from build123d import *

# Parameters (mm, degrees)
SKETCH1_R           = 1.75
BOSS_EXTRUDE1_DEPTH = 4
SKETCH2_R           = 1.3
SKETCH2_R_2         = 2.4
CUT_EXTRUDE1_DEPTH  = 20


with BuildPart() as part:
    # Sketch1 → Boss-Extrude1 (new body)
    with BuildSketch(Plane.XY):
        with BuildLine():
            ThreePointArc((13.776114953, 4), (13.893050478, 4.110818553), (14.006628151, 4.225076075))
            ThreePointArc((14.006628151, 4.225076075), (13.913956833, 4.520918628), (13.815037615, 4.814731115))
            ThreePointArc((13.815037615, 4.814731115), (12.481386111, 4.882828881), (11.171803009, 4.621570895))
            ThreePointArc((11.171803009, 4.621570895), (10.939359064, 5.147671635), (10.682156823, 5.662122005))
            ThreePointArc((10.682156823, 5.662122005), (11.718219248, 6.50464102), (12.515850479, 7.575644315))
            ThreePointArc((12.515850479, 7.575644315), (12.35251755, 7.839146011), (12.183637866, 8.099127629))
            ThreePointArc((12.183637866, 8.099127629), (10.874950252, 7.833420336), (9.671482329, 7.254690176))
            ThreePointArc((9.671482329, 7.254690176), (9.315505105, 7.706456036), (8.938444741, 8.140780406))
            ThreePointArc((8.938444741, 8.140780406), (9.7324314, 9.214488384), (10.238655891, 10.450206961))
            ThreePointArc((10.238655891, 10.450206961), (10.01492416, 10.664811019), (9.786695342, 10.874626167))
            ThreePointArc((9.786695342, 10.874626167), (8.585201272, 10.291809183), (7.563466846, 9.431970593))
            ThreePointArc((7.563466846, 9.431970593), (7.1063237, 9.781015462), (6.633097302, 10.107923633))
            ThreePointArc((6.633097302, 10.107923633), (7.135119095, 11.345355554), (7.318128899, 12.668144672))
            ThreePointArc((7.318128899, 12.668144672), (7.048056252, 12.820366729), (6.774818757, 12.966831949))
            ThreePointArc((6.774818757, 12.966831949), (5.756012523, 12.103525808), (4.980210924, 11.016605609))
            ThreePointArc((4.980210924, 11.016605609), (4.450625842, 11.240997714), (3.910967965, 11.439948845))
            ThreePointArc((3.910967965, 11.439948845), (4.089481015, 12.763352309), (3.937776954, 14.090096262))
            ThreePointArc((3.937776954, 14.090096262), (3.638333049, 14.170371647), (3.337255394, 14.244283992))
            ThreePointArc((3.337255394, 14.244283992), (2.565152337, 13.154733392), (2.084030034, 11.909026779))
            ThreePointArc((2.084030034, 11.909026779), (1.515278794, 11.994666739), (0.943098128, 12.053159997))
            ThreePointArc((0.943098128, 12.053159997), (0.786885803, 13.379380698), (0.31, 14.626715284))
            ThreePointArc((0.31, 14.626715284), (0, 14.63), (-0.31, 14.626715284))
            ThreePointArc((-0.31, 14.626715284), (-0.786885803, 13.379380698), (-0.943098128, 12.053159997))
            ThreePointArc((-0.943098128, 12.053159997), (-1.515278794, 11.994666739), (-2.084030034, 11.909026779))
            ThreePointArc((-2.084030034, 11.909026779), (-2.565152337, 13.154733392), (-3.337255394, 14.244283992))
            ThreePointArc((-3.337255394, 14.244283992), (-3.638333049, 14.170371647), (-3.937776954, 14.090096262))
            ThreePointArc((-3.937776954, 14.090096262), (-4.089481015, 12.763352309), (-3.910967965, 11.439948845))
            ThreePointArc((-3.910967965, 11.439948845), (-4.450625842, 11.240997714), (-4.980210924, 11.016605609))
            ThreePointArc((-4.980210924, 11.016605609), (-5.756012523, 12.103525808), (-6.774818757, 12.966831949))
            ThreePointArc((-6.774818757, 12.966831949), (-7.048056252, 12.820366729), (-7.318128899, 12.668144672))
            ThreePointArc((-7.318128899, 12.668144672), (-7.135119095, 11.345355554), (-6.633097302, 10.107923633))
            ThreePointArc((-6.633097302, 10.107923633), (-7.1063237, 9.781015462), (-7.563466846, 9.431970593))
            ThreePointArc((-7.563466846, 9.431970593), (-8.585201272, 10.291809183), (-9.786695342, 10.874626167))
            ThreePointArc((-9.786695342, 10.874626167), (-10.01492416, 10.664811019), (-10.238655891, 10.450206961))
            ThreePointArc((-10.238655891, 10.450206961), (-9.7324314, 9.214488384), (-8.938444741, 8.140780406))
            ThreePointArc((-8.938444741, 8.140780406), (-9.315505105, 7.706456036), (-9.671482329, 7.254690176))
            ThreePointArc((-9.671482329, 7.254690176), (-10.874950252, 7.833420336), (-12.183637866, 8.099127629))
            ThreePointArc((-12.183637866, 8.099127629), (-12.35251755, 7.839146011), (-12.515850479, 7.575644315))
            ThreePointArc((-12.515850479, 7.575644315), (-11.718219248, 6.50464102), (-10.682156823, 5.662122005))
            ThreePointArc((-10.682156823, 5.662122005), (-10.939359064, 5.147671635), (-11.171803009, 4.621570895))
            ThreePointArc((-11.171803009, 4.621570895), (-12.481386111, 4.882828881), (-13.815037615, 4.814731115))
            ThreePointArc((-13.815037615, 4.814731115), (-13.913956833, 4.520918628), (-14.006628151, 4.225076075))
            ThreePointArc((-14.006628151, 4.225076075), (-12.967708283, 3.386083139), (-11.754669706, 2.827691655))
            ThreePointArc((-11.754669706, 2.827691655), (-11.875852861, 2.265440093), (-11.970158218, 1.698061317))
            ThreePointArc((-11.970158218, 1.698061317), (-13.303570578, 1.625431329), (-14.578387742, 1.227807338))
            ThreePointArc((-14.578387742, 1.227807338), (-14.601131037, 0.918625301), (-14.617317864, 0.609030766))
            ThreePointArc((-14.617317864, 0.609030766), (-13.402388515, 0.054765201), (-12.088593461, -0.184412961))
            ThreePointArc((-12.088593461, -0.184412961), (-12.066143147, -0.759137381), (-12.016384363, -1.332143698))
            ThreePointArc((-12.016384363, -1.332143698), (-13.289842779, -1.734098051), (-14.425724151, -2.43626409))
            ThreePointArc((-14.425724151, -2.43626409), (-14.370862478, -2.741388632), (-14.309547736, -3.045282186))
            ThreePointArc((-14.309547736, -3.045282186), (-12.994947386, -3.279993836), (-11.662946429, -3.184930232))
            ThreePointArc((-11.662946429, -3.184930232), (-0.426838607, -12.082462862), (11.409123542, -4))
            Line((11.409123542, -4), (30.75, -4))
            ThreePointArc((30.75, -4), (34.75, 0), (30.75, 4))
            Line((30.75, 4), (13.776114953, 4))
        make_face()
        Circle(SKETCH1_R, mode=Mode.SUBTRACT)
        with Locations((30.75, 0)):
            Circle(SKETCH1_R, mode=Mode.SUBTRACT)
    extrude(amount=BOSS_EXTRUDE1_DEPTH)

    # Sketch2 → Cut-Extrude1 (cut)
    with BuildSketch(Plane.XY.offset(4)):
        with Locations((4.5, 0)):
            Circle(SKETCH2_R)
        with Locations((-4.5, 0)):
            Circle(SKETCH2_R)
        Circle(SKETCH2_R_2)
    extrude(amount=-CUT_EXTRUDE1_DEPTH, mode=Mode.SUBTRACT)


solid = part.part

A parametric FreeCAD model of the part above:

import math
import FreeCAD as App
import Part
import Sketcher
from FreeCAD import Vector

doc = App.newDocument("Part")
params = doc.addObject("Spreadsheet::Sheet", "Params")
for row, (alias, value) in enumerate([
    ("sketch1_radius", "4 mm"),
    ("sketch1_diameter", "3.5 mm"),
    ("sketch1_radius2", "5.4 mm"),
    ("sketch1_radius3", "12.09 mm"),
    ("sketch1_radius4", "14.629999 mm"),
    ("pad1_length", "4 mm"),
    ("sketch2_diameter", "2.6 mm"),
    ("sketch2_diameter2", "4.8 mm"),
    ("pocket1_length", "20 mm"),
], start=1):
    params.set(f"A{row}", alias)
    params.set(f"B{row}", "=" + value)
    params.setAlias(f"B{row}", alias)

body = doc.addObject("PartDesign::Body", "Body")

# Sketch on XY plane
sketch1 = doc.addObject("Sketcher::SketchObject", "Sketch")
body.addObject(sketch1)
sketch1.AttachmentSupport = (doc.XY_Plane, [""])
sketch1.MapMode = "FlatFace"
sketch1.addGeometry(Part.ArcOfCircle(Part.Circle(Vector(10.12, 7.97, 0), Vector(0, 0, 1), 5.4), math.radians(-47.39), math.radians(-43.97)), False)
sketch1.addGeometry(Part.ArcOfCircle(Part.Circle(Vector(0, 0, 0), Vector(0, 0, 1), 14.63), math.radians(16.79), math.radians(19.21)), False)
sketch1.addGeometry(Part.ArcOfCircle(Part.Circle(Vector(12.87, -0.5, 0), Vector(0, 0, 1), 5.4), math.radians(80), math.radians(108)), False)
sketch1.addGeometry(Part.ArcOfCircle(Part.Circle(Vector(0, 0, 0), Vector(0, 0, 1), 12.09), math.radians(22.47), math.radians(27.93)), False)
sketch1.addGeometry(Part.ArcOfCircle(Part.Circle(Vector(7.82, 10.24, 0), Vector(0, 0, 1), 5.4), math.radians(-58), math.radians(-30)), False)
sketch1.addGeometry(Part.ArcOfCircle(Part.Circle(Vector(0, 0, 0), Vector(0, 0, 1), 14.63), math.radians(31.19), math.radians(33.61)), False)
sketch1.addGeometry(Part.ArcOfCircle(Part.Circle(Vector(12.6, 2.71, 0), Vector(0, 0, 1), 5.4), math.radians(94), math.radians(123)), False)
sketch1.addGeometry(Part.ArcOfCircle(Part.Circle(Vector(0, 0, 0), Vector(0, 0, 1), 12.09), math.radians(36.87), math.radians(42.33)), False)
sketch1.addGeometry(Part.ArcOfCircle(Part.Circle(Vector(5.03, 11.86, 0), Vector(0, 0, 1), 5.4), math.radians(-44), math.radians(-15)), False)
sketch1.addGeometry(Part.ArcOfCircle(Part.Circle(Vector(0, 0, 0), Vector(0, 0, 1), 14.63), math.radians(45.59), math.radians(48.01)), False)
sketch1.addGeometry(Part.ArcOfCircle(Part.Circle(Vector(11.52, 5.76, 0), Vector(0, 0, 1), 5.4), math.radians(109), math.radians(137)), False)
sketch1.addGeometry(Part.ArcOfCircle(Part.Circle(Vector(0, 0, 0), Vector(0, 0, 1), 12.09), math.radians(51.27), math.radians(56.73)), False)
sketch1.addGeometry(Part.ArcOfCircle(Part.Circle(Vector(1.92, 12.74, 0), Vector(0, 0, 1), 5.4), math.radians(-29), math.radians(-1)), False)
sketch1.addGeometry(Part.ArcOfCircle(Part.Circle(Vector(0, 0, 0), Vector(0, 0, 1), 14.63), math.radians(59.99), math.radians(62.41)), False)
sketch1.addGeometry(Part.ArcOfCircle(Part.Circle(Vector(9.73, 8.45, 0), Vector(0, 0, 1), 5.4), math.radians(123), math.radians(152)), False)
sketch1.addGeometry(Part.ArcOfCircle(Part.Circle(Vector(0, 0, 0), Vector(0, 0, 1), 12.09), math.radians(65.67), math.radians(71.13)), False)
sketch1.addGeometry(Part.ArcOfCircle(Part.Circle(Vector(-1.31, 12.82, 0), Vector(0, 0, 1), 5.4), math.radians(-15), math.radians(14)), False)
sketch1.addGeometry(Part.ArcOfCircle(Part.Circle(Vector(0, 0, 0), Vector(0, 0, 1), 14.63), math.radians(74.39), math.radians(76.81)), False)
sketch1.addGeometry(Part.ArcOfCircle(Part.Circle(Vector(7.32, 10.6, 0), Vector(0, 0, 1), 5.4), math.radians(138), math.radians(166)), False)
sketch1.addGeometry(Part.ArcOfCircle(Part.Circle(Vector(0, 0, 0), Vector(0, 0, 1), 12.09), math.radians(80.07), math.radians(85.53)), False)
sketch1.addGeometry(Part.ArcOfCircle(Part.Circle(Vector(-4.46, 12.09, 0), Vector(0, 0, 1), 5.4), math.radians(0), math.radians(28)), False)
sketch1.addGeometry(Part.ArcOfCircle(Part.Circle(Vector(0, 0, 0), Vector(0, 0, 1), 14.63), math.radians(88.79), math.radians(91.21)), False)
sketch1.addGeometry(Part.ArcOfCircle(Part.Circle(Vector(4.46, 12.09, 0), Vector(0, 0, 1), 5.4), math.radians(152), math.radians(180)), False)
sketch1.addGeometry(Part.ArcOfCircle(Part.Circle(Vector(0, 0, 0), Vector(0, 0, 1), 12.09), math.radians(94.47), math.radians(99.93)), False)
sketch1.addGeometry(Part.ArcOfCircle(Part.Circle(Vector(-7.32, 10.6, 0), Vector(0, 0, 1), 5.4), math.radians(14), math.radians(42)), False)
sketch1.addGeometry(Part.ArcOfCircle(Part.Circle(Vector(0, 0, 0), Vector(0, 0, 1), 14.63), math.radians(103.19), math.radians(105.61)), False)
sketch1.addGeometry(Part.ArcOfCircle(Part.Circle(Vector(1.31, 12.82, 0), Vector(0, 0, 1), 5.4), math.radians(166), math.radians(195)), False)
sketch1.addGeometry(Part.ArcOfCircle(Part.Circle(Vector(0, 0, 0), Vector(0, 0, 1), 12.09), math.radians(108.87), math.radians(114.33)), False)
sketch1.addGeometry(Part.ArcOfCircle(Part.Circle(Vector(-9.73, 8.45, 0), Vector(0, 0, 1), 5.4), math.radians(28), math.radians(57)), False)
sketch1.addGeometry(Part.ArcOfCircle(Part.Circle(Vector(0, 0, 0), Vector(0, 0, 1), 14.63), math.radians(117.59), math.radians(120.01)), False)
sketch1.addGeometry(Part.ArcOfCircle(Part.Circle(Vector(-1.92, 12.74, 0), Vector(0, 0, 1), 5.4), math.radians(-179), math.radians(-151)), False)
sketch1.addGeometry(Part.ArcOfCircle(Part.Circle(Vector(0, 0, 0), Vector(0, 0, 1), 12.09), math.radians(123.27), math.radians(128.73)), False)
sketch1.addGeometry(Part.ArcOfCircle(Part.Circle(Vector(-11.52, 5.76, 0), Vector(0, 0, 1), 5.4), math.radians(43), math.radians(71)), False)
sketch1.addGeometry(Part.ArcOfCircle(Part.Circle(Vector(0, 0, 0), Vector(0, 0, 1), 14.63), math.radians(131.99), math.radians(134.41)), False)
sketch1.addGeometry(Part.ArcOfCircle(Part.Circle(Vector(-5.03, 11.86, 0), Vector(0, 0, 1), 5.4), math.radians(-165), math.radians(-136)), False)
sketch1.addGeometry(Part.ArcOfCircle(Part.Circle(Vector(0, 0, 0), Vector(0, 0, 1), 12.09), math.radians(137.67), math.radians(143.13)), False)
sketch1.addGeometry(Part.ArcOfCircle(Part.Circle(Vector(-12.6, 2.71, 0), Vector(0, 0, 1), 5.4), math.radians(57), math.radians(86)), False)
sketch1.addGeometry(Part.ArcOfCircle(Part.Circle(Vector(0, 0, 0), Vector(0, 0, 1), 14.63), math.radians(146.39), math.radians(148.81)), False)
sketch1.addGeometry(Part.ArcOfCircle(Part.Circle(Vector(-7.82, 10.24, 0), Vector(0, 0, 1), 5.4), math.radians(-150), math.radians(-122)), False)
sketch1.addGeometry(Part.ArcOfCircle(Part.Circle(Vector(0, 0, 0), Vector(0, 0, 1), 12.09), math.radians(152.07), math.radians(157.53)), False)
sketch1.addGeometry(Part.ArcOfCircle(Part.Circle(Vector(-12.87, -0.5, 0), Vector(0, 0, 1), 5.4), math.radians(72), math.radians(100)), False)
sketch1.addGeometry(Part.ArcOfCircle(Part.Circle(Vector(0, 0, 0), Vector(0, 0, 1), 14.63), math.radians(160.79), math.radians(163.21)), False)
sketch1.addGeometry(Part.ArcOfCircle(Part.Circle(Vector(-10.12, 7.97, 0), Vector(0, 0, 1), 5.4), math.radians(-136), math.radians(-108)), False)
sketch1.addGeometry(Part.ArcOfCircle(Part.Circle(Vector(0, 0, 0), Vector(0, 0, 1), 12.09), math.radians(166.47), math.radians(171.93)), False)
sketch1.addGeometry(Part.ArcOfCircle(Part.Circle(Vector(-12.35, -3.69, 0), Vector(0, 0, 1), 5.4), math.radians(86), math.radians(114)), False)
sketch1.addGeometry(Part.ArcOfCircle(Part.Circle(Vector(0, 0, 0), Vector(0, 0, 1), 14.63), math.radians(175.19), math.radians(177.61)), False)
sketch1.addGeometry(Part.ArcOfCircle(Part.Circle(Vector(-11.79, 5.21, 0), Vector(0, 0, 1), 5.4), math.radians(-122), math.radians(-93)), False)
sketch1.addGeometry(Part.ArcOfCircle(Part.Circle(Vector(0, 0, 0), Vector(0, 0, 1), 12.09), math.radians(-179.13), math.radians(-173.67)), False)
sketch1.addGeometry(Part.ArcOfCircle(Part.Circle(Vector(-11.04, -6.64, 0), Vector(0, 0, 1), 5.4), math.radians(100), math.radians(129)), False)
sketch1.addGeometry(Part.ArcOfCircle(Part.Circle(Vector(0, 0, 0), Vector(0, 0, 1), 14.63), math.radians(-170.41), math.radians(-167.99)), False)
sketch1.addGeometry(Part.ArcOfCircle(Part.Circle(Vector(-12.71, 2.11, 0), Vector(0, 0, 1), 5.4), math.radians(-107), math.radians(-79)), False)
sketch1.addGeometry(Part.ArcOfCircle(Part.Circle(Vector(0, 0, 0), Vector(0, 0, 1), 12.09), math.radians(-165), math.radians(-19)), False)
sketch1.addGeometry(Part.LineSegment(Vector(11.41, -4, 0), Vector(30.75, -4, 0)), False)
sketch1.addGeometry(Part.ArcOfCircle(Part.Circle(Vector(30.75, 0, 0), Vector(0, 0, 1), 4), math.radians(-90), math.radians(90)), False)
sketch1.addGeometry(Part.LineSegment(Vector(30.75, 4, 0), Vector(13.78, 4, 0)), False)
sketch1.addGeometry(Part.Circle(Vector(0, 0, 0), Vector(0, 0, 1), 1.75), False)
sketch1.addGeometry(Part.Circle(Vector(30.75, 0, 0), Vector(0, 0, 1), 1.75), False)
sketch1.addConstraint(Sketcher.Constraint("Coincident", 0, 2, 1, 1))
sketch1.addConstraint(Sketcher.Constraint("Coincident", 1, 2, 2, 1))
sketch1.addConstraint(Sketcher.Constraint("Coincident", 2, 2, 3, 1))
sketch1.addConstraint(Sketcher.Constraint("Coincident", 3, 2, 4, 1))
sketch1.addConstraint(Sketcher.Constraint("Coincident", 4, 2, 5, 1))
sketch1.addConstraint(Sketcher.Constraint("Coincident", 5, 2, 6, 1))
sketch1.addConstraint(Sketcher.Constraint("Coincident", 6, 2, 7, 1))
sketch1.addConstraint(Sketcher.Constraint("Coincident", 7, 2, 8, 1))
sketch1.addConstraint(Sketcher.Constraint("Coincident", 8, 2, 9, 1))
sketch1.addConstraint(Sketcher.Constraint("Coincident", 9, 2, 10, 1))
sketch1.addConstraint(Sketcher.Constraint("Coincident", 10, 2, 11, 1))
sketch1.addConstraint(Sketcher.Constraint("Coincident", 11, 2, 12, 1))
sketch1.addConstraint(Sketcher.Constraint("Coincident", 12, 2, 13, 1))
sketch1.addConstraint(Sketcher.Constraint("Coincident", 13, 2, 14, 1))
sketch1.addConstraint(Sketcher.Constraint("Coincident", 14, 2, 15, 1))
sketch1.addConstraint(Sketcher.Constraint("Coincident", 15, 2, 16, 1))
sketch1.addConstraint(Sketcher.Constraint("Coincident", 16, 2, 17, 1))
sketch1.addConstraint(Sketcher.Constraint("Coincident", 17, 2, 18, 1))
sketch1.addConstraint(Sketcher.Constraint("Coincident", 18, 2, 19, 1))
sketch1.addConstraint(Sketcher.Constraint("Coincident", 19, 2, 20, 1))
sketch1.addConstraint(Sketcher.Constraint("Coincident", 20, 2, 21, 1))
sketch1.addConstraint(Sketcher.Constraint("Coincident", 21, 2, 22, 1))
sketch1.addConstraint(Sketcher.Constraint("Coincident", 22, 2, 23, 1))
sketch1.addConstraint(Sketcher.Constraint("Coincident", 23, 2, 24, 1))
sketch1.addConstraint(Sketcher.Constraint("Coincident", 24, 2, 25, 1))
sketch1.addConstraint(Sketcher.Constraint("Coincident", 25, 2, 26, 1))
sketch1.addConstraint(Sketcher.Constraint("Coincident", 26, 2, 27, 1))
sketch1.addConstraint(Sketcher.Constraint("Coincident", 27, 2, 28, 1))
sketch1.addConstraint(Sketcher.Constraint("Coincident", 28, 2, 29, 1))
sketch1.addConstraint(Sketcher.Constraint("Coincident", 29, 2, 30, 1))
sketch1.addConstraint(Sketcher.Constraint("Coincident", 30, 2, 31, 1))
sketch1.addConstraint(Sketcher.Constraint("Coincident", 31, 2, 32, 1))
sketch1.addConstraint(Sketcher.Constraint("Coincident", 32, 2, 33, 1))
sketch1.addConstraint(Sketcher.Constraint("Coincident", 33, 2, 34, 1))
sketch1.addConstraint(Sketcher.Constraint("Coincident", 34, 2, 35, 1))
sketch1.addConstraint(Sketcher.Constraint("Coincident", 35, 2, 36, 1))
sketch1.addConstraint(Sketcher.Constraint("Coincident", 36, 2, 37, 1))
sketch1.addConstraint(Sketcher.Constraint("Coincident", 37, 2, 38, 1))
sketch1.addConstraint(Sketcher.Constraint("Coincident", 38, 2, 39, 1))
sketch1.addConstraint(Sketcher.Constraint("Coincident", 39, 2, 40, 1))
sketch1.addConstraint(Sketcher.Constraint("Coincident", 40, 2, 41, 1))
sketch1.addConstraint(Sketcher.Constraint("Coincident", 41, 2, 42, 1))
sketch1.addConstraint(Sketcher.Constraint("Coincident", 42, 2, 43, 1))
sketch1.addConstraint(Sketcher.Constraint("Coincident", 43, 2, 44, 1))
sketch1.addConstraint(Sketcher.Constraint("Coincident", 44, 2, 45, 1))
sketch1.addConstraint(Sketcher.Constraint("Coincident", 45, 2, 46, 1))
sketch1.addConstraint(Sketcher.Constraint("Coincident", 46, 2, 47, 1))
sketch1.addConstraint(Sketcher.Constraint("Coincident", 47, 2, 48, 1))
sketch1.addConstraint(Sketcher.Constraint("Coincident", 48, 2, 49, 1))
sketch1.addConstraint(Sketcher.Constraint("Coincident", 49, 2, 50, 1))
sketch1.addConstraint(Sketcher.Constraint("Coincident", 50, 2, 51, 1))
sketch1.addConstraint(Sketcher.Constraint("Coincident", 51, 2, 52, 1))
sketch1.addConstraint(Sketcher.Constraint("Tangent", 52, 2, 53, 1))
sketch1.addConstraint(Sketcher.Constraint("Tangent", 53, 2, 54, 1))
sketch1.addConstraint(Sketcher.Constraint("Coincident", 54, 2, 0, 1))
sketch1.addConstraint(Sketcher.Constraint("Horizontal", 52))
sketch1.addConstraint(Sketcher.Constraint("Horizontal", 54))
sketch1.addConstraint(Sketcher.Constraint("Coincident", 1, 3, -1, 1))
sketch1.addConstraint(Sketcher.Constraint("Coincident", 3, 3, -1, 1))
sketch1.addConstraint(Sketcher.Constraint("Coincident", 5, 3, -1, 1))
sketch1.addConstraint(Sketcher.Constraint("Coincident", 7, 3, -1, 1))
sketch1.addConstraint(Sketcher.Constraint("Coincident", 9, 3, -1, 1))
sketch1.addConstraint(Sketcher.Constraint("Coincident", 11, 3, -1, 1))
sketch1.addConstraint(Sketcher.Constraint("Coincident", 13, 3, -1, 1))
sketch1.addConstraint(Sketcher.Constraint("Coincident", 15, 3, -1, 1))
sketch1.addConstraint(Sketcher.Constraint("Coincident", 17, 3, -1, 1))
sketch1.addConstraint(Sketcher.Constraint("Coincident", 19, 3, -1, 1))
sketch1.addConstraint(Sketcher.Constraint("Coincident", 21, 3, -1, 1))
sketch1.addConstraint(Sketcher.Constraint("Coincident", 23, 3, -1, 1))
sketch1.addConstraint(Sketcher.Constraint("Coincident", 25, 3, -1, 1))
sketch1.addConstraint(Sketcher.Constraint("Coincident", 27, 3, -1, 1))
sketch1.addConstraint(Sketcher.Constraint("Coincident", 29, 3, -1, 1))
sketch1.addConstraint(Sketcher.Constraint("Coincident", 31, 3, -1, 1))
sketch1.addConstraint(Sketcher.Constraint("Coincident", 33, 3, -1, 1))
sketch1.addConstraint(Sketcher.Constraint("Coincident", 35, 3, -1, 1))
sketch1.addConstraint(Sketcher.Constraint("Coincident", 37, 3, -1, 1))
sketch1.addConstraint(Sketcher.Constraint("Coincident", 39, 3, -1, 1))
sketch1.addConstraint(Sketcher.Constraint("Coincident", 41, 3, -1, 1))
sketch1.addConstraint(Sketcher.Constraint("Coincident", 43, 3, -1, 1))
sketch1.addConstraint(Sketcher.Constraint("Coincident", 45, 3, -1, 1))
sketch1.addConstraint(Sketcher.Constraint("Coincident", 47, 3, -1, 1))
sketch1.addConstraint(Sketcher.Constraint("Coincident", 49, 3, -1, 1))
sketch1.addConstraint(Sketcher.Constraint("Coincident", 51, 3, -1, 1))
sketch1.addConstraint(Sketcher.Constraint("Coincident", 55, 3, -1, 1))
sketch1.addConstraint(Sketcher.Constraint("Coincident", 56, 3, 53, 3))
sketch1.addConstraint(Sketcher.Constraint("Equal", 0, 2))
sketch1.addConstraint(Sketcher.Constraint("Equal", 2, 4))
sketch1.addConstraint(Sketcher.Constraint("Equal", 4, 6))
sketch1.addConstraint(Sketcher.Constraint("Equal", 3, 7))
sketch1.addConstraint(Sketcher.Constraint("Equal", 6, 8))
sketch1.addConstraint(Sketcher.Constraint("Equal", 5, 9))
sketch1.addConstraint(Sketcher.Constraint("Equal", 8, 10))
sketch1.addConstraint(Sketcher.Constraint("Equal", 7, 11))
sketch1.addConstraint(Sketcher.Constraint("Equal", 10, 12))
sketch1.addConstraint(Sketcher.Constraint("Equal", 5, 13))
sketch1.addConstraint(Sketcher.Constraint("Equal", 12, 14))
sketch1.addConstraint(Sketcher.Constraint("Equal", 11, 15))
sketch1.addConstraint(Sketcher.Constraint("Equal", 14, 16))
sketch1.addConstraint(Sketcher.Constraint("Equal", 1, 17))
sketch1.addConstraint(Sketcher.Constraint("Equal", 16, 18))
sketch1.addConstraint(Sketcher.Constraint("Equal", 15, 19))
sketch1.addConstraint(Sketcher.Constraint("Equal", 18, 20))
sketch1.addConstraint(Sketcher.Constraint("Equal", 13, 21))
sketch1.addConstraint(Sketcher.Constraint("Equal", 20, 22))
sketch1.addConstraint(Sketcher.Constraint("Equal", 19, 23))
sketch1.addConstraint(Sketcher.Constraint("Equal", 22, 24))
sketch1.addConstraint(Sketcher.Constraint("Equal", 17, 25))
sketch1.addConstraint(Sketcher.Constraint("Equal", 24, 26))
sketch1.addConstraint(Sketcher.Constraint("Equal", 23, 27))
sketch1.addConstraint(Sketcher.Constraint("Equal", 26, 28))
sketch1.addConstraint(Sketcher.Constraint("Equal", 21, 29))
sketch1.addConstraint(Sketcher.Constraint("Equal", 28, 30))
sketch1.addConstraint(Sketcher.Constraint("Equal", 27, 31))
sketch1.addConstraint(Sketcher.Constraint("Equal", 30, 32))
sketch1.addConstraint(Sketcher.Constraint("Equal", 9, 33))
sketch1.addConstraint(Sketcher.Constraint("Equal", 32, 34))
sketch1.addConstraint(Sketcher.Constraint("Equal", 31, 35))
sketch1.addConstraint(Sketcher.Constraint("Equal", 34, 36))
sketch1.addConstraint(Sketcher.Constraint("Equal", 33, 37))
sketch1.addConstraint(Sketcher.Constraint("Equal", 36, 38))
sketch1.addConstraint(Sketcher.Constraint("Equal", 35, 39))
sketch1.addConstraint(Sketcher.Constraint("Equal", 38, 40))
sketch1.addConstraint(Sketcher.Constraint("Equal", 25, 41))
sketch1.addConstraint(Sketcher.Constraint("Equal", 40, 42))
sketch1.addConstraint(Sketcher.Constraint("Equal", 39, 43))
sketch1.addConstraint(Sketcher.Constraint("Equal", 42, 44))
sketch1.addConstraint(Sketcher.Constraint("Equal", 41, 45))
sketch1.addConstraint(Sketcher.Constraint("Equal", 44, 46))
sketch1.addConstraint(Sketcher.Constraint("Equal", 43, 47))
sketch1.addConstraint(Sketcher.Constraint("Equal", 46, 48))
sketch1.addConstraint(Sketcher.Constraint("Equal", 45, 49))
sketch1.addConstraint(Sketcher.Constraint("Equal", 48, 50))
sketch1.addConstraint(Sketcher.Constraint("Equal", 47, 51))
sketch1.addConstraint(Sketcher.Constraint("Equal", 55, 56))
sketch1.addConstraint(Sketcher.Constraint("Symmetric", 20, 3, 22, 3, -2))
sketch1.addConstraint(Sketcher.Constraint("Symmetric", 18, 3, 24, 3, -2))
sketch1.addConstraint(Sketcher.Constraint("Symmetric", 16, 3, 26, 3, -2))
sketch1.addConstraint(Sketcher.Constraint("Symmetric", 14, 3, 28, 3, -2))
sketch1.addConstraint(Sketcher.Constraint("Symmetric", 12, 3, 30, 3, -2))
sketch1.addConstraint(Sketcher.Constraint("Symmetric", 10, 3, 32, 3, -2))
sketch1.addConstraint(Sketcher.Constraint("Symmetric", 8, 3, 34, 3, -2))
sketch1.addConstraint(Sketcher.Constraint("Symmetric", 6, 3, 36, 3, -2))
sketch1.addConstraint(Sketcher.Constraint("Symmetric", 4, 3, 38, 3, -2))
sketch1.addConstraint(Sketcher.Constraint("Symmetric", 2, 3, 40, 3, -2))
sketch1.addConstraint(Sketcher.Constraint("Symmetric", 0, 3, 42, 3, -2))
sketch1.addConstraint(Sketcher.Constraint("PointOnObject", 53, 3, -1))
sketch1.addConstraint(Sketcher.Constraint("Radius", 53, 4.0))
sketch1.addConstraint(Sketcher.Constraint("Diameter", 55, 3.5))
sketch1.addConstraint(Sketcher.Constraint("Radius", 0, 5.4))
sketch1.addConstraint(Sketcher.Constraint("Radius", 3, 12.09))
sketch1.addConstraint(Sketcher.Constraint("Radius", 5, 14.629999))
sketch1.addConstraint(Sketcher.Constraint("Radius", 45, 14.630002))
sketch1.addConstraint(Sketcher.Constraint("DistanceX", -1, 1, 53, 3, 30.75))
sketch1.addConstraint(Sketcher.Constraint("DistanceX", -1, 1, 20, 2, 0.31))
sketch1.addConstraint(Sketcher.Constraint("DistanceX", -1, 1, 19, 2, 0.943098))
sketch1.addConstraint(Sketcher.Constraint("DistanceX", 54, 2, 54, 1, 16.973885))
sketch1.addConstraint(Sketcher.Constraint("DistanceY", -1, 1, 0, 3, 7.974489))
sketch1.addConstraint(Sketcher.Constraint("DistanceY", 2, 3, -1, 1, 0.50281))
sketch1.addConstraint(Sketcher.Constraint("DistanceX", -1, 1, 10, 3, 11.524638))
sketch1.addConstraint(Sketcher.Constraint("DistanceY", -1, 1, 10, 3, 5.761941))
sketch1.addConstraint(Sketcher.Constraint("DistanceY", -1, 1, 12, 3, 12.74112))
sketch1.addConstraint(Sketcher.Constraint("DistanceY", -1, 1, 14, 3, 8.44698))
sketch1.addConstraint(Sketcher.Constraint("DistanceX", -1, 1, 18, 3, 7.323282))
sketch1.addConstraint(Sketcher.Constraint("DistanceX", 44, 3, -1, 1, 12.34542))
sketch1.addConstraint(Sketcher.Constraint("DistanceY", 48, 3, -1, 1, 6.643172))
sketch1.addConstraint(Sketcher.Constraint("DistanceX", 50, 3, -1, 1, 12.710412))
sketch1.addConstraint(Sketcher.Constraint("DistanceY", -1, 1, 1, 2, 4.814731))
sketch1.addConstraint(Sketcher.Constraint("DistanceX", -1, 1, 4, 2, 12.51585))
sketch1.addConstraint(Sketcher.Constraint("DistanceY", -1, 1, 6, 2, 7.25469))
sketch1.addConstraint(Sketcher.Constraint("DistanceY", -1, 1, 7, 2, 8.14078))
sketch1.addConstraint(Sketcher.Constraint("DistanceX", -1, 1, 12, 2, 7.318129))
sketch1.addConstraint(Sketcher.Constraint("DistanceX", -1, 1, 13, 2, 6.774819))
sketch1.addConstraint(Sketcher.Constraint("DistanceY", -1, 1, 15, 2, 11.439949))
sketch1.addConstraint(Sketcher.Constraint("DistanceX", -1, 1, 18, 2, 2.08403))
sketch1.addConstraint(Sketcher.Constraint("DistanceX", 43, 2, -1, 1, 11.970158))
sketch1.addConstraint(Sketcher.Constraint("DistanceY", -1, 1, 45, 2, 0.609031))
sketch1.addConstraint(Sketcher.Constraint("DistanceY", 50, 2, -1, 1, 3.18493))
sketch1.addConstraint(Sketcher.Constraint("DistanceX", -1, 1, 4, 3, 7.819383))
sketch1.addConstraint(Sketcher.Constraint("DistanceX", -1, 1, 6, 3, 12.595507))
sketch1.addConstraint(Sketcher.Constraint("DistanceX", -1, 1, 8, 3, 5.026933))
sketch1.addConstraint(Sketcher.Constraint("DistanceX", 16, 3, -1, 1, 1.310243))
sketch1.addConstraint(Sketcher.Constraint("DistanceX", 46, 3, -1, 1, 11.785732))
sketch1.addConstraint(Sketcher.Constraint("DistanceX", 48, 3, -1, 1, 11.040177))
sketch1.setExpression("Constraints[146]", "Params.sketch1_radius")
sketch1.setExpression("Constraints[147]", "Params.sketch1_diameter")
sketch1.setExpression("Constraints[148]", "Params.sketch1_radius2")
sketch1.setExpression("Constraints[149]", "Params.sketch1_radius3")
sketch1.setExpression("Constraints[150]", "Params.sketch1_radius4")
pad1 = doc.addObject("PartDesign::Pad", "Pad")
body.addObject(pad1)
pad1.Profile = sketch1
pad1.setExpression("Length", "Params.pad1_length")

# Sketch on XY plane
sketch2 = doc.addObject("Sketcher::SketchObject", "Sketch001")
body.addObject(sketch2)
sketch2.AttachmentSupport = (doc.XY_Plane, [""])
sketch2.MapMode = "FlatFace"
sketch2.AttachmentOffset = App.Placement(Vector(0, 0, 4), App.Rotation())
sketch2.addGeometry(Part.Circle(Vector(4.5, 0, 0), Vector(0, 0, 1), 1.3), False)
sketch2.addGeometry(Part.Circle(Vector(-4.5, 0, 0), Vector(0, 0, 1), 1.3), False)
sketch2.addGeometry(Part.Circle(Vector(0, 0, 0), Vector(0, 0, 1), 2.4), False)
sketch2.addConstraint(Sketcher.Constraint("Coincident", 2, 3, -1, 1))
sketch2.addConstraint(Sketcher.Constraint("Equal", 0, 1))
sketch2.addConstraint(Sketcher.Constraint("Symmetric", 0, 3, 1, 3, -1, 1))
sketch2.addConstraint(Sketcher.Constraint("PointOnObject", 0, 3, -1))
sketch2.addConstraint(Sketcher.Constraint("Diameter", 0, 2.6))
sketch2.addConstraint(Sketcher.Constraint("Diameter", 2, 4.8))
sketch2.addConstraint(Sketcher.Constraint("DistanceX", 1, 3, 0, 3, 9.0))
sketch2.setExpression("Constraints[4]", "Params.sketch2_diameter")
sketch2.setExpression("Constraints[5]", "Params.sketch2_diameter2")
pocket1 = doc.addObject("PartDesign::Pocket", "Pocket")
body.addObject(pocket1)
pocket1.Profile = sketch2
pocket1.setExpression("Length", "Params.pocket1_length")

doc.recompute()
